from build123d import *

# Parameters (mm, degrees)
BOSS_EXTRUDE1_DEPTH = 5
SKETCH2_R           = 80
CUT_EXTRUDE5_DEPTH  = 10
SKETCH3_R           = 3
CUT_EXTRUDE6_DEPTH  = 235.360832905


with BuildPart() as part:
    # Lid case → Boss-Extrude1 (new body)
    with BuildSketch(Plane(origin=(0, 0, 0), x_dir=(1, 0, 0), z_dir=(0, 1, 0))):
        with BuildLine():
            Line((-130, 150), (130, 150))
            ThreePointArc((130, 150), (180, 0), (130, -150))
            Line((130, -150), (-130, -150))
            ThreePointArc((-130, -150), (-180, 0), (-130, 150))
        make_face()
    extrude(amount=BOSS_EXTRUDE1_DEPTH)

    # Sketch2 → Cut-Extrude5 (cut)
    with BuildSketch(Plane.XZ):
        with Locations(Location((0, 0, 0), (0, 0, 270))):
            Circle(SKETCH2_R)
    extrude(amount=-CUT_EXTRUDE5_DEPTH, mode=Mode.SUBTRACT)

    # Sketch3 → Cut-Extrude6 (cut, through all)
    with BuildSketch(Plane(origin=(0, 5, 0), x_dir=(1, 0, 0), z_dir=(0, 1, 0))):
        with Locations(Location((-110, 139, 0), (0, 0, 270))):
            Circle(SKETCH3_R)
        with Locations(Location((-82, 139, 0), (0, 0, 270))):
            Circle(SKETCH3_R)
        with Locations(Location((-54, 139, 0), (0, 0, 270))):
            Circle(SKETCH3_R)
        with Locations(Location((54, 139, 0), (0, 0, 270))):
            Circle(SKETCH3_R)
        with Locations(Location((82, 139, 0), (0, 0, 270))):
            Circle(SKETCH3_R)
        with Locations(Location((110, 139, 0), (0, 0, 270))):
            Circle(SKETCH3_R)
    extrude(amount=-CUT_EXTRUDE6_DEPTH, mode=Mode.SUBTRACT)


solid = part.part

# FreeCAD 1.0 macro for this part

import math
import FreeCAD as App
import Part
import Sketcher
from FreeCAD import Vector

doc = App.newDocument("Part")
body = doc.addObject("PartDesign::Body", "Body")

# Sketch on XZ plane
sketch1 = body.newObject("Sketcher::SketchObject", "Sketch")
sketch1.AttachmentSupport = (doc.getObject("XZ_Plane"), [""])
sketch1.MapMode = "FlatFace"
sketch1.addGeometry(Part.LineSegment(Vector(130, -150, 0), Vector(-130, -150, 0)), False)
sketch1.addGeometry(Part.ArcOfCircle(Part.Circle(Vector(70, 0, 0), Vector(0, 0, 1), 250), math.radians(143), math.radians(217)), False)
sketch1.addGeometry(Part.LineSegment(Vector(-130, 150, 0), Vector(130, 150, 0)), False)
sketch1.addGeometry(Part.ArcOfCircle(Part.Circle(Vector(-70, 0, 0), Vector(0, 0, 1), 250), math.radians(-37), math.radians(37)), False)
sketch1.addConstraint(Sketcher.Constraint("Coincident", 0, 2, 1, 2))
sketch1.addConstraint(Sketcher.Constraint("Coincident", 1, 1, 2, 1))
sketch1.addConstraint(Sketcher.Constraint("Coincident", 2, 2, 3, 2))
sketch1.addConstraint(Sketcher.Constraint("Coincident", 3, 1, 0, 1))
sketch1.addConstraint(Sketcher.Constraint("Horizontal", 0))
sketch1.addConstraint(Sketcher.Constraint("Horizontal", 2))
sketch1.addConstraint(Sketcher.Constraint("Equal", 1, 3))
sketch1.addConstraint(Sketcher.Constraint("Symmetric", 1, 3, 3, 3, -1, 1))
sketch1.addConstraint(Sketcher.Constraint("Symmetric", 0, 2, 1, 1, -1))
sketch1.addConstraint(Sketcher.Constraint("Radius", 1, 250.0))
sketch1.addConstraint(Sketcher.Constraint("DistanceX", 0, 2, 0, 1, 260.0))
sketch1.addConstraint(Sketcher.Constraint("DistanceX", -1, 1, 1, 3, 70.0))
pad1 = body.newObject("PartDesign::Pad", "Pad")
pad1.Profile = sketch1
pad1.Length = 5
pad1.Reversed = True

# Sketch on XZ plane
sketch2 = body.newObject("Sketcher::SketchObject", "Sketch001")
sketch2.AttachmentSupport = (doc.getObject("XZ_Plane"), [""])
sketch2.MapMode = "FlatFace"
sketch2.addGeometry(Part.Circle(Vector(0, 0, 0), Vector(0, 0, 1), 80), False)
sketch2.addConstraint(Sketcher.Constraint("Coincident", 0, 3, -1, 1))
sketch2.addConstraint(Sketcher.Constraint("Diameter", 0, 160.0))
pocket1 = body.newObject("PartDesign::Pocket", "Pocket")
pocket1.Profile = sketch2
pocket1.Length = 10

# Sketch on XZ plane
sketch3 = body.newObject("Sketcher::SketchObject", "Sketch002")
sketch3.AttachmentSupport = (doc.getObject("XZ_Plane"), [""])
sketch3.MapMode = "FlatFace"
sketch3.AttachmentOffset = App.Placement(Vector(0, 0, -5), App.Rotation())
sketch3.addGeometry(Part.Circle(Vector(-110, -139, 0), Vector(0, 0, 1), 3), False)
sketch3.addGeometry(Part.Circle(Vector(-82, -139, 0), Vector(0, 0, 1), 3), False)
sketch3.addGeometry(Part.Circle(Vector(-54, -139, 0), Vector(0, 0, 1), 3), False)
sketch3.addGeometry(Part.Circle(Vector(54, -139, 0), Vector(0, 0, 1), 3), False)
sketch3.addGeometry(Part.Circle(Vector(82, -139, 0), Vector(0, 0, 1), 3), False)
sketch3.addGeometry(Part.Circle(Vector(110, -139, 0), Vector(0, 0, 1), 3), False)
sketch3.addConstraint(Sketcher.Constraint("Equal", 0, 1))
sketch3.addConstraint(Sketcher.Constraint("Equal", 1, 2))
sketch3.addConstraint(Sketcher.Constraint("Equal", 2, 3))
sketch3.addConstraint(Sketcher.Constraint("Equal", 3, 4))
sketch3.addConstraint(Sketcher.Constraint("Equal", 4, 5))
sketch3.addConstraint(Sketcher.Constraint("Symmetric", 2, 3, 3, 3, -2))
sketch3.addConstraint(Sketcher.Constraint("Symmetric", 1, 3, 4, 3, -2))
sketch3.addConstraint(Sketcher.Constraint("Symmetric", 0, 3, 5, 3, -2))
sketch3.addConstraint(Sketcher.Constraint("Horizontal", 0, 3, 1, 3))
sketch3.addConstraint(Sketcher.Constraint("Horizontal", 1, 3, 2, 3))
sketch3.addConstraint(Sketcher.Constraint("Diameter", 0, 6.0))
sketch3.addConstraint(Sketcher.Constraint("DistanceX", 0, 3, -1, 1, 110.0))
sketch3.addConstraint(Sketcher.Constraint("DistanceY", 0, 3, -1, 1, 139.0))
sketch3.addConstraint(Sketcher.Constraint("DistanceX", 1, 3, -1, 1, 82.0))
sketch3.addConstraint(Sketcher.Constraint("DistanceX", 2, 3, -1, 1, 54.0))
pocket2 = body.newObject("PartDesign::Pocket", "Pocket001")
pocket2.Profile = sketch3
pocket2.Type = "ThroughAll"
pocket2.Reversed = True

doc.recompute()
